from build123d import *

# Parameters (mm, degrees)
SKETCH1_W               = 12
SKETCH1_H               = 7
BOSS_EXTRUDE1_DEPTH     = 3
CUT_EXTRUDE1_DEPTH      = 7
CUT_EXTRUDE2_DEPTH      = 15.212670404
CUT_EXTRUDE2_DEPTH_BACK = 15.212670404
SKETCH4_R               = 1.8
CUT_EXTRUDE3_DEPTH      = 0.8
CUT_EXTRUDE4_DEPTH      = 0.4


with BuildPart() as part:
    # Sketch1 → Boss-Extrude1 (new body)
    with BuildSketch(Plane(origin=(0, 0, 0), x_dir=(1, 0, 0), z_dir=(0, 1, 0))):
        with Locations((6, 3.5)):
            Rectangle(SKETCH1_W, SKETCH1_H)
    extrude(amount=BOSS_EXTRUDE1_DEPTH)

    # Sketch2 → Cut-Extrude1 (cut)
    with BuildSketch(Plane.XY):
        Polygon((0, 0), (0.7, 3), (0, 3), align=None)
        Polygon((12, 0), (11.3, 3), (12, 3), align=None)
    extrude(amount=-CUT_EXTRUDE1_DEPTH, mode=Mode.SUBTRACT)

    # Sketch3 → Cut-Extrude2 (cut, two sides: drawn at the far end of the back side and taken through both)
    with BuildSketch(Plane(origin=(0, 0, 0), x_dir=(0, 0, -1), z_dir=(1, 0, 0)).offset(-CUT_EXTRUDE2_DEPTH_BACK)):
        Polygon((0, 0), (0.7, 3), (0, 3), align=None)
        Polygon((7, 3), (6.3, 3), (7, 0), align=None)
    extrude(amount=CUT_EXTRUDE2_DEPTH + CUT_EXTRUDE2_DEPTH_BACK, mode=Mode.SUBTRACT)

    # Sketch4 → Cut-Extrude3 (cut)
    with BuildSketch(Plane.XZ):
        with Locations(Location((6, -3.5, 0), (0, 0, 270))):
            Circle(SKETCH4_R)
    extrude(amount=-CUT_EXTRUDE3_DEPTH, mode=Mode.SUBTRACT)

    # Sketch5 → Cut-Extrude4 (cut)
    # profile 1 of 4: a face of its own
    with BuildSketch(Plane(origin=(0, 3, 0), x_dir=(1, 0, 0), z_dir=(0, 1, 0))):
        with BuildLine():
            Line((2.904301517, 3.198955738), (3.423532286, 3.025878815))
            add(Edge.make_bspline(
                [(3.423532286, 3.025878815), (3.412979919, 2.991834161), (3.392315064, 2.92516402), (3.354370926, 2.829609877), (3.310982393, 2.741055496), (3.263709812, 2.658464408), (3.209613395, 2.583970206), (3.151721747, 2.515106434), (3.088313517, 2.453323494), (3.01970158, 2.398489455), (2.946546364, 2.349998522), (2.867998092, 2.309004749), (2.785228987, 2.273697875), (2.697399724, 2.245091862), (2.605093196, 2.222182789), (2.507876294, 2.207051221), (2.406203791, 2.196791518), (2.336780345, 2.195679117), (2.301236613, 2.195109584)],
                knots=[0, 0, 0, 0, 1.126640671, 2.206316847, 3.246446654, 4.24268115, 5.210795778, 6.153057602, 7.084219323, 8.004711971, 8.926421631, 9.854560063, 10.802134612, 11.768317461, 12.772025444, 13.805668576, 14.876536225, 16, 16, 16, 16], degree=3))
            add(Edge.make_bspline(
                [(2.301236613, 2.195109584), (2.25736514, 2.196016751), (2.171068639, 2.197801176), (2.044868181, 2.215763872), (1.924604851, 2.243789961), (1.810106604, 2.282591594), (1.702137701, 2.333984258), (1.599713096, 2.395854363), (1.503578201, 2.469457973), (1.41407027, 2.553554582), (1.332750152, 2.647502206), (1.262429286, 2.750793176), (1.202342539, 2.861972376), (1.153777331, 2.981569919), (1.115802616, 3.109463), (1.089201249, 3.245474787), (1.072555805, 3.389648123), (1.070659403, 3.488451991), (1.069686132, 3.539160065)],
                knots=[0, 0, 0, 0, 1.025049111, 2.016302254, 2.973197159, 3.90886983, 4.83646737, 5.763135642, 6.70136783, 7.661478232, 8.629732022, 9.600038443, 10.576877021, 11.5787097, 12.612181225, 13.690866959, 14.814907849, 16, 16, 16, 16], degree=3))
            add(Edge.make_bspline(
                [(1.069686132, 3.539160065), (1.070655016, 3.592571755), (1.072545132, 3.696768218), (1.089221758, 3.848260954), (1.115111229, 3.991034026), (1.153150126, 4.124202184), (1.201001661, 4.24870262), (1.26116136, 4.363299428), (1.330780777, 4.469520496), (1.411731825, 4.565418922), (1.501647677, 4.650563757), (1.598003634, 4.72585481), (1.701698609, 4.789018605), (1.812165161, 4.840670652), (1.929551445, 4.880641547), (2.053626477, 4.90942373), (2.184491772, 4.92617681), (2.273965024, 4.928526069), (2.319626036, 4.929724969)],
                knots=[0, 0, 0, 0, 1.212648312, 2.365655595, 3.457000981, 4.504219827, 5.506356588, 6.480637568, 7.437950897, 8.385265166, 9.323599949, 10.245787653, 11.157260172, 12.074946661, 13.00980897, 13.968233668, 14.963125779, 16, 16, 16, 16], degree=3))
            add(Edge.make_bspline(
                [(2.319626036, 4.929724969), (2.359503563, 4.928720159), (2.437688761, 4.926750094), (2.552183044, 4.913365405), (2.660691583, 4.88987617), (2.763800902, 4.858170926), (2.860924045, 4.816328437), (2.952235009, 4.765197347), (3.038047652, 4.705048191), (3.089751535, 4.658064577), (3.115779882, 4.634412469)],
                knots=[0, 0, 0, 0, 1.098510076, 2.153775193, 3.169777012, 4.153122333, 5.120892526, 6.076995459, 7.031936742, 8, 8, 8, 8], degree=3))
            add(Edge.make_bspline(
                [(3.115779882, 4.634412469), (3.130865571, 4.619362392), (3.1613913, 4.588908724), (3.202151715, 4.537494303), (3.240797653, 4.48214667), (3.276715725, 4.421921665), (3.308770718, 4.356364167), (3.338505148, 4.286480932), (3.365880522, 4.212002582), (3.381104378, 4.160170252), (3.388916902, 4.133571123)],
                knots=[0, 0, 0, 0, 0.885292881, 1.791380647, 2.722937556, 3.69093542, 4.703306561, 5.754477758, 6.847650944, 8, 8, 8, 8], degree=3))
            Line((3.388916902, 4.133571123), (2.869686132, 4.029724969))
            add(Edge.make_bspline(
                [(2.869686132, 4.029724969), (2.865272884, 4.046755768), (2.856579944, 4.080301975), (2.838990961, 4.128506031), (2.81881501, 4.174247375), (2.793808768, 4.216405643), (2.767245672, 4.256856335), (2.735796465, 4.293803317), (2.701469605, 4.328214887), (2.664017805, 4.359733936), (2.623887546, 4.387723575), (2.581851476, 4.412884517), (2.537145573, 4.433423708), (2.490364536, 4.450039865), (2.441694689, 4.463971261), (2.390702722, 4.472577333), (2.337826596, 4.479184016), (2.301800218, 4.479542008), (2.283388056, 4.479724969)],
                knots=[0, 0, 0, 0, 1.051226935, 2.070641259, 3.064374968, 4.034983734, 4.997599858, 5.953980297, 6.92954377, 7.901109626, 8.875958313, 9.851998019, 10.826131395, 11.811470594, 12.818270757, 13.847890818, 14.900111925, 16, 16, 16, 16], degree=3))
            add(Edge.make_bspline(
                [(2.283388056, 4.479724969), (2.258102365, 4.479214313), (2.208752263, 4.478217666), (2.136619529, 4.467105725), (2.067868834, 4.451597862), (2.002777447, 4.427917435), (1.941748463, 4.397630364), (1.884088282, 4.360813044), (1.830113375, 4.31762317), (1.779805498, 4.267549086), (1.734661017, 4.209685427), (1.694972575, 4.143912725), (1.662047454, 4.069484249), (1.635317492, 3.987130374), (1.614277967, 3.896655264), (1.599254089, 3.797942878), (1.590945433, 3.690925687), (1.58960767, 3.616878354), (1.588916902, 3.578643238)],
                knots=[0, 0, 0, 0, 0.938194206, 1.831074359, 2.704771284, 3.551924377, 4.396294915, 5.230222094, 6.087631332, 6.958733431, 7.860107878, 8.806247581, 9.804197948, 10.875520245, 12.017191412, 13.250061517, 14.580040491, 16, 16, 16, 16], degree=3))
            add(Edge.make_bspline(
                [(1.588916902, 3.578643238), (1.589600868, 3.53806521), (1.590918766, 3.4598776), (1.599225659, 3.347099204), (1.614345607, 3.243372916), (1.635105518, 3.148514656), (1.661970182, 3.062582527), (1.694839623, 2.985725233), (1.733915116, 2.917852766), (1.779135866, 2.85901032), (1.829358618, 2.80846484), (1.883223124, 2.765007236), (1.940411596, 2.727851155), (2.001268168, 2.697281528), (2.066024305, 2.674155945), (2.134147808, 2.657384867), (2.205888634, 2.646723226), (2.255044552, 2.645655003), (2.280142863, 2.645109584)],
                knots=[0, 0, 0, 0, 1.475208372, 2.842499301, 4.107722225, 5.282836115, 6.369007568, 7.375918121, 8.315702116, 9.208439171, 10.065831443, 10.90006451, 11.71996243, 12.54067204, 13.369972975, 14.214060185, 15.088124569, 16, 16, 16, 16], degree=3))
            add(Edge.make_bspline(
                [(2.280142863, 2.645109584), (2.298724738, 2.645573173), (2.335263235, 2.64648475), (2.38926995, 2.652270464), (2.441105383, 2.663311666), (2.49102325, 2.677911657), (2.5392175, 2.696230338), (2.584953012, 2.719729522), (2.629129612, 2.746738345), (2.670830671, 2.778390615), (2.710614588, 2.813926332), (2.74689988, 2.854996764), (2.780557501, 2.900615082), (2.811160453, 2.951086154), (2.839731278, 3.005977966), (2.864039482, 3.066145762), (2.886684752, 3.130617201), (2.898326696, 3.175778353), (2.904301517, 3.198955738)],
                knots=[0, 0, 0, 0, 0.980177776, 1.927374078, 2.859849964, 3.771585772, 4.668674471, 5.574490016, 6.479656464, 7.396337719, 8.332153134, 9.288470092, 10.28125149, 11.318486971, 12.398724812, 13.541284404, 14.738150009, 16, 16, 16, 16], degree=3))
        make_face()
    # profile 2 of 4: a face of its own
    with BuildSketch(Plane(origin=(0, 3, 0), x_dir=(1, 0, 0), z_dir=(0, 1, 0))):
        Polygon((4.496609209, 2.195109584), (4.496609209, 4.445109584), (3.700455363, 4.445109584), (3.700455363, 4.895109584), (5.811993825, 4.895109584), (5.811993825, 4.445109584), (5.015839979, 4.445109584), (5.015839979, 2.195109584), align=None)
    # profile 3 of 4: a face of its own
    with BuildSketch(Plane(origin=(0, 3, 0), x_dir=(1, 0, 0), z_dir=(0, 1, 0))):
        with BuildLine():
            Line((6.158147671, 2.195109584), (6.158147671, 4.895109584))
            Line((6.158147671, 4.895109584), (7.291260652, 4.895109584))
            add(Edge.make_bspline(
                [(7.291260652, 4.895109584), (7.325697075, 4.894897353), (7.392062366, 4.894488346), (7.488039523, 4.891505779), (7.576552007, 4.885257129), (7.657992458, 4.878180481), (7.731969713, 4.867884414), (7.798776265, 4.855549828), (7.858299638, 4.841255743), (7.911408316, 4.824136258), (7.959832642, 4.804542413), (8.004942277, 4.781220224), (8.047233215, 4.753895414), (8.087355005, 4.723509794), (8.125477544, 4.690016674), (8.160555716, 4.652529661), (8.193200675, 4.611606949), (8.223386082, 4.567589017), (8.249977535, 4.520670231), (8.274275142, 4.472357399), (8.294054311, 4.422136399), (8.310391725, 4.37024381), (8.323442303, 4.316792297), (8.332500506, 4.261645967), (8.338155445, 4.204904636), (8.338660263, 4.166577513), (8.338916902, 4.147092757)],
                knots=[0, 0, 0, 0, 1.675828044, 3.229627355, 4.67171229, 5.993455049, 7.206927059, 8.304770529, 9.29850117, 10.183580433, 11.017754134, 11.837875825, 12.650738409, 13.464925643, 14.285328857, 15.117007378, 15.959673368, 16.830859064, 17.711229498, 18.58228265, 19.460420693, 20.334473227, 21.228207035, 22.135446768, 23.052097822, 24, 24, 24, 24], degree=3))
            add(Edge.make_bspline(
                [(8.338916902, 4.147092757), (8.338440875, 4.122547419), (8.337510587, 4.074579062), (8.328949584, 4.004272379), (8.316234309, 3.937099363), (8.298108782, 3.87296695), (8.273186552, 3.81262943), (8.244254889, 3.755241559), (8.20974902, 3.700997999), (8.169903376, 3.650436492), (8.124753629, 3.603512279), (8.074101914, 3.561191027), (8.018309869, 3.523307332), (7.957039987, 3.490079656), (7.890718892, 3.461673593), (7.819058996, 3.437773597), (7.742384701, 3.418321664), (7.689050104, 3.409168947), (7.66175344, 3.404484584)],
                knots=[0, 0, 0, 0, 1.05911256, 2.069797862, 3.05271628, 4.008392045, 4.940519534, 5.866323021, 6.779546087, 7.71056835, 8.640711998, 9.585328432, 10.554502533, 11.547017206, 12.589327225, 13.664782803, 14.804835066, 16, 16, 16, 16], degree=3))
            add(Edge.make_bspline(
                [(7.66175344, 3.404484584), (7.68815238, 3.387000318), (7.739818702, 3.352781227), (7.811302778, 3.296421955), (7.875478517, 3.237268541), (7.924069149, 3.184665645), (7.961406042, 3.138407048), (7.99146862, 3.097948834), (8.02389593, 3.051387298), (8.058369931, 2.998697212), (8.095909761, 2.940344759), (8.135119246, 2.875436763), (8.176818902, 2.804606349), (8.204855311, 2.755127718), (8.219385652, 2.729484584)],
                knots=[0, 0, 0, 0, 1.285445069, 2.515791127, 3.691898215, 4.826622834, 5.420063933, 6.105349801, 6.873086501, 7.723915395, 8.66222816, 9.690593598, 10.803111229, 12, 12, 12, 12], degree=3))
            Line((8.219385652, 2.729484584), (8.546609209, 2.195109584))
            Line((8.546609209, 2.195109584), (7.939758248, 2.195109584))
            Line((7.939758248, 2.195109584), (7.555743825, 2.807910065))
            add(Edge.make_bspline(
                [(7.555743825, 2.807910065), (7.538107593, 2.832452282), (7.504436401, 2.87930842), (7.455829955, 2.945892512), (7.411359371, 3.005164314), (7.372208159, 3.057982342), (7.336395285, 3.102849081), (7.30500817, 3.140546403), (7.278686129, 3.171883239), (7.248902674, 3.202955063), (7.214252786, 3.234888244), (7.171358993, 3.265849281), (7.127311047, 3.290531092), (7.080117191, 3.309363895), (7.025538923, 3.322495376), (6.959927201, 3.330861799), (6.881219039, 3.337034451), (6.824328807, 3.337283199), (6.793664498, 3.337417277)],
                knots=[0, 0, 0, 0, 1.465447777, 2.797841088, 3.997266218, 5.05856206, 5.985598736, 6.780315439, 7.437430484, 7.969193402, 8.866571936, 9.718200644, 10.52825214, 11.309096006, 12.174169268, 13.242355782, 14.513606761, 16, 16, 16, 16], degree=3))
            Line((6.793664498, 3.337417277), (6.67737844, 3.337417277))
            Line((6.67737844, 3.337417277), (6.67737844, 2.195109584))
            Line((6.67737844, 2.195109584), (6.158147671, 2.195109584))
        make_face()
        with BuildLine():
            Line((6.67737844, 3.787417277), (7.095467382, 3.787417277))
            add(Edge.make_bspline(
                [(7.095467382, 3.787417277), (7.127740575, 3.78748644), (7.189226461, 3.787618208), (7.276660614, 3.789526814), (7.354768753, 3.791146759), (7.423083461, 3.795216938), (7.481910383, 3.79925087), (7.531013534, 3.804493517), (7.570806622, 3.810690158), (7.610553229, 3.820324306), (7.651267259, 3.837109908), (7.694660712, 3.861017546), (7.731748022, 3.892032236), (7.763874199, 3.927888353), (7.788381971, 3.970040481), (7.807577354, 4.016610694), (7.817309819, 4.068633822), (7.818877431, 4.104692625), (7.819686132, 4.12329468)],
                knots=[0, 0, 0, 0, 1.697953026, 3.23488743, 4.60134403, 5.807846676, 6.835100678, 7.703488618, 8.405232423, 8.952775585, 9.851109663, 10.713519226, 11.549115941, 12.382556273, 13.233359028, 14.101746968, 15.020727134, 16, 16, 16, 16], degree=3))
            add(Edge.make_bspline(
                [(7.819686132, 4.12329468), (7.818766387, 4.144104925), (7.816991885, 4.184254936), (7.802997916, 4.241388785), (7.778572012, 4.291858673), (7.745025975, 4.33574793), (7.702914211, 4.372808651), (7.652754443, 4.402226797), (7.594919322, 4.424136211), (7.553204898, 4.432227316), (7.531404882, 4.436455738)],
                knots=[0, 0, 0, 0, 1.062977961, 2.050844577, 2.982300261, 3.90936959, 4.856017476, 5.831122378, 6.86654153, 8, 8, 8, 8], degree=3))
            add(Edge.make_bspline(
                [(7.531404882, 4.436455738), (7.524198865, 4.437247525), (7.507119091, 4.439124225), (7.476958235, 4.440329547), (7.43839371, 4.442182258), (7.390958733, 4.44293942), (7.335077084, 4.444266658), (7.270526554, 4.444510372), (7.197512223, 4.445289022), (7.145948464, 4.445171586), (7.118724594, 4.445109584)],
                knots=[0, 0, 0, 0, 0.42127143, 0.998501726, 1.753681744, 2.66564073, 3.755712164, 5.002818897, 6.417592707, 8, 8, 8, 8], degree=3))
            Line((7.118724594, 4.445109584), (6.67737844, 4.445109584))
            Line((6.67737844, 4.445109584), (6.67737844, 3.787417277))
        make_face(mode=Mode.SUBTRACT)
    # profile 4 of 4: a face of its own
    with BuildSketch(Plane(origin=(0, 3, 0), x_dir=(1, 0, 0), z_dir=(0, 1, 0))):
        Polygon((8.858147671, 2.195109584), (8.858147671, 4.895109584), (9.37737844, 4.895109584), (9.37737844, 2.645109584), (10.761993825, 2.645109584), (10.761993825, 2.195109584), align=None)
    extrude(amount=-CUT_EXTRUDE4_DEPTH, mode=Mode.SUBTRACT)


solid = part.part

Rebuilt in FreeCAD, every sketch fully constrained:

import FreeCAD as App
import Part
import Sketcher
from FreeCAD import Vector


def add_polygon(sketch, points):
    """Adds a closed chain of lines whose ends are joined by coincident constraints."""
    first, n = sketch.GeometryCount, len(points)
    for a, b in zip(points, points[1:] + points[:1]):
        sketch.addGeometry(Part.LineSegment(App.Vector(*a, 0), App.Vector(*b, 0)), False)
    for i in range(n):
        sketch.addConstraint(Sketcher.Constraint("Coincident", first + i, 2, first + (i + 1) % n, 1))

doc = App.newDocument("Part")
body = doc.addObject("PartDesign::Body", "Body")

# Sketch on XZ plane
sketch1 = doc.addObject("Sketcher::SketchObject", "Sketch")
body.addObject(sketch1)
sketch1.AttachmentSupport = (doc.XZ_Plane, [""])
sketch1.MapMode = "FlatFace"
add_polygon(sketch1, [(0, -7), (0, 0), (12, 0), (12, -7)])  # lines 0-3
sketch1.addConstraint([
    Sketcher.Constraint("Vertical", 0),
    Sketcher.Constraint("Horizontal", 1),
    Sketcher.Constraint("Vertical", 2),
    Sketcher.Constraint("Horizontal", 3),
    Sketcher.Constraint("Coincident", 0, 2, -1, 1),
    Sketcher.Constraint("DistanceX", 1, 1, 1, 2, 12.0),
    Sketcher.Constraint("DistanceY", 0, 1, 0, 2, 7.0),
])
pad1 = doc.addObject("PartDesign::Pad", "Pad")
body.addObject(pad1)
pad1.Profile = sketch1
pad1.Length = 3
pad1.Reversed = True

# Sketch on XY plane
sketch2 = doc.addObject("Sketcher::SketchObject", "Sketch001")
body.addObject(sketch2)
sketch2.AttachmentSupport = (doc.XY_Plane, [""])
sketch2.MapMode = "FlatFace"
add_polygon(sketch2, [(0, 0), (0.7, 3), (0, 3)])  # lines 0-2
add_polygon(sketch2, [(11.3, 3), (12, 0), (12, 3)])  # lines 3-5
sketch2.addConstraint([
    Sketcher.Constraint("Horizontal", 1),
    Sketcher.Constraint("Vertical", 2),
    Sketcher.Constraint("Vertical", 4),
    Sketcher.Constraint("Horizontal", 5),
    Sketcher.Constraint("Coincident", 2, 2, -1, 1),
    Sketcher.Constraint("PointOnObject", 3, 2, -1),
    Sketcher.Constraint("Horizontal", 1, 2, 4, 2),
    Sketcher.Constraint("Equal", 1, 5),
    Sketcher.Constraint("DistanceY", 2, 2, 2, 1, 3.0),
    Sketcher.Constraint("DistanceX", 1, 2, 1, 1, 0.7),
    Sketcher.Constraint("DistanceX", -1, 1, 3, 2, 12.0),
])
pocket1 = doc.addObject("PartDesign::Pocket", "Pocket")
body.addObject(pocket1)
pocket1.Profile = sketch2
pocket1.Length = 7

# Sketch on YZ plane
sketch3 = doc.addObject("Sketcher::SketchObject", "Sketch002")
body.addObject(sketch3)
sketch3.AttachmentSupport = (doc.YZ_Plane, [""])
sketch3.MapMode = "FlatFace"
add_polygon(sketch3, [(0, 0), (3, -0.7), (3, 0)])  # lines 0-2
add_polygon(sketch3, [(3, -7), (3, -6.3), (0, -7)])  # lines 3-5
sketch3.addConstraint([
    Sketcher.Constraint("Vertical", 1),
    Sketcher.Constraint("Horizontal", 2),
    Sketcher.Constraint("Vertical", 3),
    Sketcher.Constraint("Horizontal", 5),
    Sketcher.Constraint("Coincident", 2, 2, -1, 1),
    Sketcher.Constraint("PointOnObject", 4, 2, -2),
    Sketcher.Constraint("Vertical", 1, 2, 3, 2),
    Sketcher.Constraint("Equal", 1, 3),
    Sketcher.Constraint("DistanceX", 2, 2, 2, 1, 3.0),
    Sketcher.Constraint("DistanceY", 1, 1, 1, 2, 0.7),
    Sketcher.Constraint("DistanceY", 4, 2, -1, 1, 7.0),
])
pocket2 = doc.addObject("PartDesign::Pocket", "Pocket001")
body.addObject(pocket2)
pocket2.Profile = sketch3
pocket2.Type = "ThroughAll"
pocket2.Midplane = True

# Sketch on XZ plane
sketch4 = doc.addObject("Sketcher::SketchObject", "Sketch003")
body.addObject(sketch4)
sketch4.AttachmentSupport = (doc.XZ_Plane, [""])
sketch4.MapMode = "FlatFace"
sketch4.addGeometry(Part.Circle(Vector(6, -3.5, 0), Vector(0, 0, 1), 1.8), False)
sketch4.addConstraint([
    Sketcher.Constraint("Diameter", 0, 3.6),
    Sketcher.Constraint("DistanceX", -1, 1, 0, 3, 6.0),
    Sketcher.Constraint("DistanceY", 0, 3, -1, 1, 3.5),
])
pocket3 = doc.addObject("PartDesign::Pocket", "Pocket002")
body.addObject(pocket3)
pocket3.Profile = sketch4
pocket3.Length = 0.8

# Sketch on XZ plane
sketch5 = doc.addObject("Sketcher::SketchObject", "Sketch004")
body.addObject(sketch5)
sketch5.AttachmentSupport = (doc.XZ_Plane, [""])
sketch5.MapMode = "FlatFace"
sketch5.AttachmentOffset = App.Placement(Vector(0, 0, -3), App.Rotation())
sketch5.addGeometry(Part.LineSegment(Vector(3.423532, -3.025879, 0), Vector(2.904302, -3.198956, 0)), False)  # 0
sketch5.addGeometry(Part.BSplineCurve([Vector(2.280143, -2.64511, 0), Vector(2.298725, -2.645573, 0), Vector(2.335263, -2.646485, 0), Vector(2.38927, -2.65227, 0), Vector(2.441105, -2.663312, 0), Vector(2.491023, -2.677912, 0), Vector(2.539217, -2.69623, 0), Vector(2.584953, -2.71973, 0), Vector(2.62913, -2.746738, 0), Vector(2.670831, -2.778391, 0), Vector(2.710615, -2.813926, 0), Vector(2.7469, -2.854997, 0), Vector(2.780558, -2.900615, 0), Vector(2.81116, -2.951086, 0), Vector(2.839731, -3.005978, 0), Vector(2.864039, -3.066146, 0), Vector(2.886685, -3.130617, 0), Vector(2.898327, -3.175778, 0), Vector(2.904302, -3.198956, 0)], [4, 1, 1, 1, 1, 1, 1, 1, 1, 1, 1, 1, 1, 1, 1, 1, 4], [0, 0.980177776, 1.927374078, 2.859849964, 3.771585772, 4.668674471, 5.574490016, 6.479656464, 7.396337719, 8.332153134, 9.288470092, 10.28125149, 11.318486971, 12.398724812, 13.541284404, 14.738150009, 16], False, 3, [1, 1, 1, 1, 1, 1, 1, 1, 1, 1, 1, 1, 1, 1, 1, 1, 1, 1, 1], False), False)  # 1
sketch5.addGeometry(Part.BSplineCurve([Vector(1.588917, -3.578643, 0), Vector(1.589601, -3.538065, 0), Vector(1.590919, -3.459878, 0), Vector(1.599226, -3.347099, 0), Vector(1.614346, -3.243373, 0), Vector(1.635106, -3.148515, 0), Vector(1.66197, -3.062583, 0), Vector(1.69484, -2.985725, 0), Vector(1.733915, -2.917853, 0), Vector(1.779136, -2.85901, 0), Vector(1.829359, -2.808465, 0), Vector(1.883223, -2.765007, 0), Vector(1.940412, -2.727851, 0), Vector(2.001268, -2.697282, 0), Vector(2.066024, -2.674156, 0), Vector(2.134148, -2.657385, 0), Vector(2.205889, -2.646723, 0), Vector(2.255045, -2.645655, 0), Vector(2.280143, -2.64511, 0)], [4, 1, 1, 1, 1, 1, 1, 1, 1, 1, 1, 1, 1, 1, 1, 1, 4], [0, 1.475208372, 2.842499301, 4.107722225, 5.282836115, 6.369007568, 7.375918121, 8.315702116, 9.208439171, 10.065831443, 10.90006451, 11.71996243, 12.54067204, 13.369972975, 14.214060185, 15.088124569, 16], False, 3, [1, 1, 1, 1, 1, 1, 1, 1, 1, 1, 1, 1, 1, 1, 1, 1, 1, 1, 1], False), False)  # 2
sketch5.addGeometry(Part.BSplineCurve([Vector(2.283388, -4.479725, 0), Vector(2.258102, -4.479214, 0), Vector(2.208752, -4.478218, 0), Vector(2.13662, -4.467106, 0), Vector(2.067869, -4.451598, 0), Vector(2.002777, -4.427917, 0), Vector(1.941748, -4.39763, 0), Vector(1.884088, -4.360813, 0), Vector(1.830113, -4.317623, 0), Vector(1.779805, -4.267549, 0), Vector(1.734661, -4.209685, 0), Vector(1.694973, -4.143913, 0), Vector(1.662047, -4.069484, 0), Vector(1.635317, -3.98713, 0), Vector(1.614278, -3.896655, 0), Vector(1.599254, -3.797943, 0), Vector(1.590945, -3.690926, 0), Vector(1.589608, -3.616878, 0), Vector(1.588917, -3.578643, 0)], [4, 1, 1, 1, 1, 1, 1, 1, 1, 1, 1, 1, 1, 1, 1, 1, 4], [0, 0.938194206, 1.831074359, 2.704771284, 3.551924377, 4.396294915, 5.230222094, 6.087631332, 6.958733431, 7.860107878, 8.806247581, 9.804197948, 10.875520245, 12.017191412, 13.250061517, 14.580040491, 16], False, 3, [1, 1, 1, 1, 1, 1, 1, 1, 1, 1, 1, 1, 1, 1, 1, 1, 1, 1, 1], False), False)  # 3
sketch5.addGeometry(Part.BSplineCurve([Vector(2.869686, -4.029725, 0), Vector(2.865273, -4.046756, 0), Vector(2.85658, -4.080302, 0), Vector(2.838991, -4.128506, 0), Vector(2.818815, -4.174247, 0), Vector(2.793809, -4.216406, 0), Vector(2.767246, -4.256856, 0), Vector(2.735796, -4.293803, 0), Vector(2.70147, -4.328215, 0), Vector(2.664018, -4.359734, 0), Vector(2.623888, -4.387724, 0), Vector(2.581851, -4.412885, 0), Vector(2.537146, -4.433424, 0), Vector(2.490365, -4.45004, 0), Vector(2.441695, -4.463971, 0), Vector(2.390703, -4.472577, 0), Vector(2.337827, -4.479184, 0), Vector(2.3018, -4.479542, 0), Vector(2.283388, -4.479725, 0)], [4, 1, 1, 1, 1, 1, 1, 1, 1, 1, 1, 1, 1, 1, 1, 1, 4], [0, 1.051226935, 2.070641259, 3.064374968, 4.034983734, 4.997599858, 5.953980297, 6.92954377, 7.901109626, 8.875958313, 9.851998019, 10.826131395, 11.811470594, 12.818270757, 13.847890818, 14.900111925, 16], False, 3, [1, 1, 1, 1, 1, 1, 1, 1, 1, 1, 1, 1, 1, 1, 1, 1, 1, 1, 1], False), False)  # 4
sketch5.addGeometry(Part.LineSegment(Vector(2.869686, -4.029725, 0), Vector(3.388917, -4.133571, 0)), False)  # 5
sketch5.addGeometry(Part.BSplineCurve([Vector(3.11578, -4.634412, 0), Vector(3.130866, -4.619362, 0), Vector(3.161391, -4.588909, 0), Vector(3.202152, -4.537494, 0), Vector(3.240798, -4.482147, 0), Vector(3.276716, -4.421922, 0), Vector(3.308771, -4.356364, 0), Vector(3.338505, -4.286481, 0), Vector(3.365881, -4.212003, 0), Vector(3.381104, -4.16017, 0), Vector(3.388917, -4.133571, 0)], [4, 1, 1, 1, 1, 1, 1, 1, 4], [0, 0.885292881, 1.791380647, 2.722937556, 3.69093542, 4.703306561, 5.754477758, 6.847650944, 8], False, 3, [1, 1, 1, 1, 1, 1, 1, 1, 1, 1, 1], False), False)  # 6
sketch5.addGeometry(Part.BSplineCurve([Vector(2.319626, -4.929725, 0), Vector(2.359504, -4.92872, 0), Vector(2.437689, -4.92675, 0), Vector(2.552183, -4.913365, 0), Vector(2.660692, -4.889876, 0), Vector(2.763801, -4.858171, 0), Vector(2.860924, -4.816328, 0), Vector(2.952235, -4.765197, 0), Vector(3.038048, -4.705048, 0), Vector(3.089752, -4.658065, 0), Vector(3.11578, -4.634412, 0)], [4, 1, 1, 1, 1, 1, 1, 1, 4], [0, 1.098510076, 2.153775193, 3.169777012, 4.153122333, 5.120892526, 6.076995459, 7.031936742, 8], False, 3, [1, 1, 1, 1, 1, 1, 1, 1, 1, 1, 1], False), False)  # 7
sketch5.addGeometry(Part.BSplineCurve([Vector(1.069686, -3.53916, 0), Vector(1.070655, -3.592572, 0), Vector(1.072545, -3.696768, 0), Vector(1.089222, -3.848261, 0), Vector(1.115111, -3.991034, 0), Vector(1.15315, -4.124202, 0), Vector(1.201002, -4.248703, 0), Vector(1.261161, -4.363299, 0), Vector(1.330781, -4.46952, 0), Vector(1.411732, -4.565419, 0), Vector(1.501648, -4.650564, 0), Vector(1.598004, -4.725855, 0), Vector(1.701699, -4.789019, 0), Vector(1.812165, -4.840671, 0), Vector(1.929551, -4.880642, 0), Vector(2.053626, -4.909424, 0), Vector(2.184492, -4.926177, 0), Vector(2.273965, -4.928526, 0), Vector(2.319626, -4.929725, 0)], [4, 1, 1, 1, 1, 1, 1, 1, 1, 1, 1, 1, 1, 1, 1, 1, 4], [0, 1.212648312, 2.365655595, 3.457000981, 4.504219827, 5.506356588, 6.480637568, 7.437950897, 8.385265166, 9.323599949, 10.245787653, 11.157260172, 12.074946661, 13.00980897, 13.968233668, 14.963125779, 16], False, 3, [1, 1, 1, 1, 1, 1, 1, 1, 1, 1, 1, 1, 1, 1, 1, 1, 1, 1, 1], False), False)  # 8
sketch5.addGeometry(Part.BSplineCurve([Vector(2.301237, -2.19511, 0), Vector(2.257365, -2.196017, 0), Vector(2.171069, -2.197801, 0), Vector(2.044868, -2.215764, 0), Vector(1.924605, -2.24379, 0), Vector(1.810107, -2.282592, 0), Vector(1.702138, -2.333984, 0), Vector(1.599713, -2.395854, 0), Vector(1.503578, -2.469458, 0), Vector(1.41407, -2.553555, 0), Vector(1.33275, -2.647502, 0), Vector(1.262429, -2.750793, 0), Vector(1.202343, -2.861972, 0), Vector(1.153777, -2.98157, 0), Vector(1.115803, -3.109463, 0), Vector(1.089201, -3.245475, 0), Vector(1.072556, -3.389648, 0), Vector(1.070659, -3.488452, 0), Vector(1.069686, -3.53916, 0)], [4, 1, 1, 1, 1, 1, 1, 1, 1, 1, 1, 1, 1, 1, 1, 1, 4], [0, 1.025049111, 2.016302254, 2.973197159, 3.90886983, 4.83646737, 5.763135642, 6.70136783, 7.661478232, 8.629732022, 9.600038443, 10.576877021, 11.5787097, 12.612181225, 13.690866959, 14.814907849, 16], False, 3, [1, 1, 1, 1, 1, 1, 1, 1, 1, 1, 1, 1, 1, 1, 1, 1, 1, 1, 1], False), False)  # 9
sketch5.addGeometry(Part.BSplineCurve([Vector(3.423532, -3.025879, 0), Vector(3.41298, -2.991834, 0), Vector(3.392315, -2.925164, 0), Vector(3.354371, -2.82961, 0), Vector(3.310982, -2.741055, 0), Vector(3.26371, -2.658464, 0), Vector(3.209613, -2.58397, 0), Vector(3.151722, -2.515106, 0), Vector(3.088314, -2.453323, 0), Vector(3.019702, -2.398489, 0), Vector(2.946546, -2.349999, 0), Vector(2.867998, -2.309005, 0), Vector(2.785229, -2.273698, 0), Vector(2.6974, -2.245092, 0), Vector(2.605093, -2.222183, 0), Vector(2.507876, -2.207051, 0), Vector(2.406204, -2.196792, 0), Vector(2.33678, -2.195679, 0), Vector(2.301237, -2.19511, 0)], [4, 1, 1, 1, 1, 1, 1, 1, 1, 1, 1, 1, 1, 1, 1, 1, 4], [0, 1.126640671, 2.206316847, 3.246446654, 4.24268115, 5.210795778, 6.153057602, 7.084219323, 8.004711971, 8.926421631, 9.854560063, 10.802134612, 11.768317461, 12.772025444, 13.805668576, 14.876536225, 16], False, 3, [1, 1, 1, 1, 1, 1, 1, 1, 1, 1, 1, 1, 1, 1, 1, 1, 1, 1, 1], False), False)  # 10
add_polygon(sketch5, [(4.496609, -4.44511), (4.496609, -2.19511), (5.01584, -2.19511), (5.01584, -4.44511), (5.811994, -4.44511), (5.811994, -4.89511), (3.700455, -4.89511), (3.700455, -4.44511)])  # lines 11-18
sketch5.addGeometry(Part.LineSegment(Vector(6.158148, -4.89511, 0), Vector(6.158148, -2.19511, 0)), False)  # 19
sketch5.addGeometry(Part.LineSegment(Vector(6.158148, -2.19511, 0), Vector(6.677378, -2.19511, 0)), False)  # 20
sketch5.addGeometry(Part.LineSegment(Vector(6.677378, -2.19511, 0), Vector(6.677378, -3.337417, 0)), False)  # 21
sketch5.addGeometry(Part.LineSegment(Vector(6.677378, -3.337417, 0), Vector(6.793664, -3.337417, 0)), False)  # 22
sketch5.addGeometry(Part.BSplineCurve([Vector(7.555744, -2.80791, 0), Vector(7.538108, -2.832452, 0), Vector(7.504436, -2.879308, 0), Vector(7.45583, -2.945893, 0), Vector(7.411359, -3.005164, 0), Vector(7.372208, -3.057982, 0), Vector(7.336395, -3.102849, 0), Vector(7.305008, -3.140546, 0), Vector(7.278686, -3.171883, 0), Vector(7.248903, -3.202955, 0), Vector(7.214253, -3.234888, 0), Vector(7.171359, -3.265849, 0), Vector(7.127311, -3.290531, 0), Vector(7.080117, -3.309364, 0), Vector(7.025539, -3.322495, 0), Vector(6.959927, -3.330862, 0), Vector(6.881219, -3.337034, 0), Vector(6.824329, -3.337283, 0), Vector(6.793664, -3.337417, 0)], [4, 1, 1, 1, 1, 1, 1, 1, 1, 1, 1, 1, 1, 1, 1, 1, 4], [0, 1.465447777, 2.797841088, 3.997266218, 5.05856206, 5.985598736, 6.780315439, 7.437430484, 7.969193402, 8.866571936, 9.718200644, 10.52825214, 11.309096006, 12.174169268, 13.242355782, 14.513606761, 16], False, 3, [1, 1, 1, 1, 1, 1, 1, 1, 1, 1, 1, 1, 1, 1, 1, 1, 1, 1, 1], False), False)  # 23
sketch5.addGeometry(Part.LineSegment(Vector(7.555744, -2.80791, 0), Vector(7.939758, -2.19511, 0)), False)  # 24
sketch5.addGeometry(Part.LineSegment(Vector(7.939758, -2.19511, 0), Vector(8.546609, -2.19511, 0)), False)  # 25
sketch5.addGeometry(Part.LineSegment(Vector(8.546609, -2.19511, 0), Vector(8.219386, -2.729485, 0)), False)  # 26
sketch5.addGeometry(Part.BSplineCurve([Vector(7.661753, -3.404485, 0), Vector(7.688152, -3.387, 0), Vector(7.739819, -3.352781, 0), Vector(7.811303, -3.296422, 0), Vector(7.875479, -3.237269, 0), Vector(7.924069, -3.184666, 0), Vector(7.961406, -3.138407, 0), Vector(7.991469, -3.097949, 0), Vector(8.023896, -3.051387, 0), Vector(8.05837, -2.998697, 0), Vector(8.09591, -2.940345, 0), Vector(8.135119, -2.875437, 0), Vector(8.176819, -2.804606, 0), Vector(8.204855, -2.755128, 0), Vector(8.219386, -2.729485, 0)], [4, 1, 1, 1, 1, 1, 1, 1, 1, 1, 1, 1, 4], [0, 1.285445069, 2.515791127, 3.691898215, 4.826622834, 5.420063933, 6.105349801, 6.873086501, 7.723915395, 8.66222816, 9.690593598, 10.803111229, 12], False, 3, [1, 1, 1, 1, 1, 1, 1, 1, 1, 1, 1, 1, 1, 1, 1], False), False)  # 27
sketch5.addGeometry(Part.BSplineCurve([Vector(8.338917, -4.147093, 0), Vector(8.338441, -4.122547, 0), Vector(8.337511, -4.074579, 0), Vector(8.32895, -4.004272, 0), Vector(8.316234, -3.937099, 0), Vector(8.298109, -3.872967, 0), Vector(8.273187, -3.812629, 0), Vector(8.244255, -3.755242, 0), Vector(8.209749, -3.700998, 0), Vector(8.169903, -3.650436, 0), Vector(8.124754, -3.603512, 0), Vector(8.074102, -3.561191, 0), Vector(8.01831, -3.523307, 0), Vector(7.95704, -3.49008, 0), Vector(7.890719, -3.461674, 0), Vector(7.819059, -3.437774, 0), Vector(7.742385, -3.418322, 0), Vector(7.68905, -3.409169, 0), Vector(7.661753, -3.404485, 0)], [4, 1, 1, 1, 1, 1, 1, 1, 1, 1, 1, 1, 1, 1, 1, 1, 4], [0, 1.05911256, 2.069797862, 3.05271628, 4.008392045, 4.940519534, 5.866323021, 6.779546087, 7.71056835, 8.640711998, 9.585328432, 10.554502533, 11.547017206, 12.589327225, 13.664782803, 14.804835066, 16], False, 3, [1, 1, 1, 1, 1, 1, 1, 1, 1, 1, 1, 1, 1, 1, 1, 1, 1, 1, 1], False), False)  # 28
sketch5.addGeometry(Part.BSplineCurve([Vector(7.291261, -4.89511, 0), Vector(7.325697, -4.894897, 0), Vector(7.392062, -4.894488, 0), Vector(7.48804, -4.891506, 0), Vector(7.576552, -4.885257, 0), Vector(7.657992, -4.87818, 0), Vector(7.73197, -4.867884, 0), Vector(7.798776, -4.85555, 0), Vector(7.8583, -4.841256, 0), Vector(7.911408, -4.824136, 0), Vector(7.959833, -4.804542, 0), Vector(8.004942, -4.78122, 0), Vector(8.047233, -4.753895, 0), Vector(8.087355, -4.72351, 0), Vector(8.125478, -4.690017, 0), Vector(8.160556, -4.65253, 0), Vector(8.193201, -4.611607, 0), Vector(8.223386, -4.567589, 0), Vector(8.249978, -4.52067, 0), Vector(8.274275, -4.472357, 0), Vector(8.294054, -4.422136, 0), Vector(8.310392, -4.370244, 0), Vector(8.323442, -4.316792, 0), Vector(8.332501, -4.261646, 0), Vector(8.338155, -4.204905, 0), Vector(8.33866, -4.166578, 0), Vector(8.338917, -4.147093, 0)], [4, 1, 1, 1, 1, 1, 1, 1, 1, 1, 1, 1, 1, 1, 1, 1, 1, 1, 1, 1, 1, 1, 1, 1, 4], [0, 1.675828044, 3.229627355, 4.67171229, 5.993455049, 7.206927059, 8.304770529, 9.29850117, 10.183580433, 11.017754134, 11.837875825, 12.650738409, 13.464925643, 14.285328857, 15.117007378, 15.959673368, 16.830859064, 17.711229498, 18.58228265, 19.460420693, 20.334473227, 21.228207035, 22.135446768, 23.052097822, 24], False, 3, [1, 1, 1, 1, 1, 1, 1, 1, 1, 1, 1, 1, 1, 1, 1, 1, 1, 1, 1, 1, 1, 1, 1, 1, 1, 1, 1], False), False)  # 29
sketch5.addGeometry(Part.LineSegment(Vector(7.291261, -4.89511, 0), Vector(6.158148, -4.89511, 0)), False)  # 30
sketch5.addGeometry(Part.LineSegment(Vector(6.677378, -3.787417, 0), Vector(6.677378, -4.44511, 0)), False)  # 31
sketch5.addGeometry(Part.LineSegment(Vector(6.677378, -4.44511, 0), Vector(7.118725, -4.44511, 0)), False)  # 32
sketch5.addGeometry(Part.BSplineCurve([Vector(7.531405, -4.436456, 0), Vector(7.524199, -4.437248, 0), Vector(7.507119, -4.439124, 0), Vector(7.476958, -4.44033, 0), Vector(7.438394, -4.442182, 0), Vector(7.390959, -4.442939, 0), Vector(7.335077, -4.444267, 0), Vector(7.270527, -4.44451, 0), Vector(7.197512, -4.445289, 0), Vector(7.145948, -4.445172, 0), Vector(7.118725, -4.44511, 0)], [4, 1, 1, 1, 1, 1, 1, 1, 4], [0, 0.42127143, 0.998501726, 1.753681744, 2.66564073, 3.755712164, 5.002818897, 6.417592707, 8], False, 3, [1, 1, 1, 1, 1, 1, 1, 1, 1, 1, 1], False), False)  # 33
sketch5.addGeometry(Part.BSplineCurve([Vector(7.819686, -4.123295, 0), Vector(7.818766, -4.144105, 0), Vector(7.816992, -4.184255, 0), Vector(7.802998, -4.241389, 0), Vector(7.778572, -4.291859, 0), Vector(7.745026, -4.335748, 0), Vector(7.702914, -4.372809, 0), Vector(7.652754, -4.402227, 0), Vector(7.594919, -4.424136, 0), Vector(7.553205, -4.432227, 0), Vector(7.531405, -4.436456, 0)], [4, 1, 1, 1, 1, 1, 1, 1, 4], [0, 1.062977961, 2.050844577, 2.982300261, 3.90936959, 4.856017476, 5.831122378, 6.86654153, 8], False, 3, [1, 1, 1, 1, 1, 1, 1, 1, 1, 1, 1], False), False)  # 34
sketch5.addGeometry(Part.BSplineCurve([Vector(7.095467, -3.787417, 0), Vector(7.127741, -3.787486, 0), Vector(7.189226, -3.787618, 0), Vector(7.276661, -3.789527, 0), Vector(7.354769, -3.791147, 0), Vector(7.423083, -3.795217, 0), Vector(7.48191, -3.799251, 0), Vector(7.531014, -3.804494, 0), Vector(7.570807, -3.81069, 0), Vector(7.610553, -3.820324, 0), Vector(7.651267, -3.83711, 0), Vector(7.694661, -3.861018, 0), Vector(7.731748, -3.892032, 0), Vector(7.763874, -3.927888, 0), Vector(7.788382, -3.97004, 0), Vector(7.807577, -4.016611, 0), Vector(7.81731, -4.068634, 0), Vector(7.818877, -4.104693, 0), Vector(7.819686, -4.123295, 0)], [4, 1, 1, 1, 1, 1, 1, 1, 1, 1, 1, 1, 1, 1, 1, 1, 4], [0, 1.697953026, 3.23488743, 4.60134403, 5.807846676, 6.835100678, 7.703488618, 8.405232423, 8.952775585, 9.851109663, 10.713519226, 11.549115941, 12.382556273, 13.233359028, 14.101746968, 15.020727134, 16], False, 3, [1, 1, 1, 1, 1, 1, 1, 1, 1, 1, 1, 1, 1, 1, 1, 1, 1, 1, 1], False), False)  # 35
sketch5.addGeometry(Part.LineSegment(Vector(7.095467, -3.787417, 0), Vector(6.677378, -3.787417, 0)), False)  # 36
add_polygon(sketch5, [(8.858148, -4.89511), (8.858148, -2.19511), (10.761994, -2.19511), (10.761994, -2.64511), (9.377378, -2.64511), (9.377378, -4.89511)])  # lines 37-42
sketch5.addConstraint([
    Sketcher.Constraint("Block", 1),
    Sketcher.Constraint("Block", 2),
    Sketcher.Constraint("Block", 3),
    Sketcher.Constraint("Block", 4),
    Sketcher.Constraint("Block", 6),
    Sketcher.Constraint("Block", 7),
    Sketcher.Constraint("Block", 8),
    Sketcher.Constraint("Block", 9),
    Sketcher.Constraint("Block", 10),
    Sketcher.Constraint("Block", 23),
    Sketcher.Constraint("Block", 27),
    Sketcher.Constraint("Block", 28),
    Sketcher.Constraint("Block", 29),
    Sketcher.Constraint("Block", 33),
    Sketcher.Constraint("Block", 34),
    Sketcher.Constraint("Block", 35),
    Sketcher.Constraint("Coincident", 0, 2, 1, 2),
    Sketcher.Constraint("Coincident", 4, 1, 5, 1),
    Sketcher.Constraint("Coincident", 5, 2, 6, 2),
    Sketcher.Constraint("Coincident", 10, 1, 0, 1),
    Sketcher.Constraint("Coincident", 19, 2, 20, 1),
    Sketcher.Constraint("Coincident", 20, 2, 21, 1),
    Sketcher.Constraint("Coincident", 21, 2, 22, 1),
    Sketcher.Constraint("Coincident", 22, 2, 23, 2),
    Sketcher.Constraint("Coincident", 23, 1, 24, 1),
    Sketcher.Constraint("Coincident", 24, 2, 25, 1),
    Sketcher.Constraint("Coincident", 25, 2, 26, 1),
    Sketcher.Constraint("Coincident", 26, 2, 27, 2),
    Sketcher.Constraint("Coincident", 29, 1, 30, 1),
    Sketcher.Constraint("Coincident", 30, 2, 19, 1),
    Sketcher.Constraint("Coincident", 31, 2, 32, 1),
    Sketcher.Constraint("Coincident", 32, 2, 33, 2),
    Sketcher.Constraint("Coincident", 35, 1, 36, 1),
    Sketcher.Constraint("Coincident", 36, 2, 31, 1),
    Sketcher.Constraint("Vertical", 11),
    Sketcher.Constraint("Horizontal", 12),
    Sketcher.Constraint("Vertical", 13),
    Sketcher.Constraint("Horizontal", 14),
    Sketcher.Constraint("Vertical", 15),
    Sketcher.Constraint("Horizontal", 16),
    Sketcher.Constraint("Vertical", 17),
    Sketcher.Constraint("Horizontal", 18),
    Sketcher.Constraint("Vertical", 19),
    Sketcher.Constraint("Horizontal", 20),
    Sketcher.Constraint("Vertical", 21),
    Sketcher.Constraint("Horizontal", 22),
    Sketcher.Constraint("Horizontal", 25),
    Sketcher.Constraint("Horizontal", 30),
    Sketcher.Constraint("Vertical", 31),
    Sketcher.Constraint("Horizontal", 32),
    Sketcher.Constraint("Horizontal", 36),
    Sketcher.Constraint("Vertical", 37),
    Sketcher.Constraint("Horizontal", 38),
    Sketcher.Constraint("Vertical", 39),
    Sketcher.Constraint("Horizontal", 40),
    Sketcher.Constraint("Vertical", 41),
    Sketcher.Constraint("Horizontal", 42),
    Sketcher.Constraint("Horizontal", 14, 2, 17, 2),
    Sketcher.Constraint("Horizontal", 12, 2, 19, 2),
    Sketcher.Constraint("Horizontal", 20, 2, 24, 2),
    Sketcher.Constraint("Horizontal", 16, 2, 30, 2),
    Sketcher.Constraint("Horizontal", 18, 2, 31, 2),
    Sketcher.Constraint("Horizontal", 25, 2, 37, 2),
    Sketcher.Constraint("Horizontal", 30, 2, 41, 2),
    Sketcher.Constraint("Vertical", 21, 2, 31, 2),
    Sketcher.Constraint("Equal", 14, 18),
    Sketcher.Constraint("Equal", 12, 20),
    Sketcher.Constraint("Equal", 20, 42),
    Sketcher.Constraint("Equal", 17, 39),
    Sketcher.Constraint("DistanceY", 19, 1, 19, 2, 2.7),
    Sketcher.Constraint("DistanceX", 31, 2, 41, 2, 2.7),
    Sketcher.Constraint("DistanceX", 12, 1, 12, 2, 0.519231),
    Sketcher.Constraint("DistanceX", 16, 2, 16, 1, 2.111538),
    Sketcher.Constraint("DistanceX", 25, 1, 25, 2, 0.606851),
    Sketcher.Constraint("DistanceX", 36, 2, 36, 1, 0.418089),
    Sketcher.Constraint("Distance", 24, 0.723182),
    Sketcher.Constraint("DistanceX", 38, 1, 38, 2, 1.903846),
    Sketcher.Constraint("DistanceX", -1, 1, 11, 2, 4.496609),
])
pocket4 = doc.addObject("PartDesign::Pocket", "Pocket003")
body.addObject(pocket4)
pocket4.Profile = sketch5
pocket4.Length = 0.4
pocket4.Reversed = True

doc.recompute()
